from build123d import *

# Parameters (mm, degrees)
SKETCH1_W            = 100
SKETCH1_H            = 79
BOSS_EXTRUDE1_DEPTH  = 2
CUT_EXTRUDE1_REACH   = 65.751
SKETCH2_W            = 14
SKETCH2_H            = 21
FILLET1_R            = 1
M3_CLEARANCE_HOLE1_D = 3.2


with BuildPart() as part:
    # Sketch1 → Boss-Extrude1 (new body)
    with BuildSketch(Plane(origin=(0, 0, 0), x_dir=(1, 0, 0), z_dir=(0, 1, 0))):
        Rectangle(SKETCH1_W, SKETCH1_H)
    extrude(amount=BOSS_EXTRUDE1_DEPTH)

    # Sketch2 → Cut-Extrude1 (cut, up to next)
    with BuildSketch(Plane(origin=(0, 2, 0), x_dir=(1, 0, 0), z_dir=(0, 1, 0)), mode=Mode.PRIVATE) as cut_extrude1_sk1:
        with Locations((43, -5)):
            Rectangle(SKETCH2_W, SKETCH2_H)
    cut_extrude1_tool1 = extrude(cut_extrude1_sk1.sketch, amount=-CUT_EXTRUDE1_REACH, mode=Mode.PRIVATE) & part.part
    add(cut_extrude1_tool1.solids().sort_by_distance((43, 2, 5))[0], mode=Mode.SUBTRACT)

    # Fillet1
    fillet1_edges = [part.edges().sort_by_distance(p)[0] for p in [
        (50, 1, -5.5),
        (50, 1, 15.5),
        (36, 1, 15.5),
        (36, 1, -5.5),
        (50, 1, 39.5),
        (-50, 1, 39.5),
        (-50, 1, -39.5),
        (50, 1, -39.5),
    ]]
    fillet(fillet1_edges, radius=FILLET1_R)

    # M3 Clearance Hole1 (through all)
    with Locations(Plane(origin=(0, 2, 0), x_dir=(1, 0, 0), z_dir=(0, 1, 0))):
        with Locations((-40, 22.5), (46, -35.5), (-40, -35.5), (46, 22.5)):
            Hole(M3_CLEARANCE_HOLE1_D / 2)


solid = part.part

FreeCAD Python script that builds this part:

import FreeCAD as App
import Part
import Sketcher
Q = App.Units.Quantity


def edges_at(feature, points):
    """Names of the edges that pass closest to the given points."""
    edges = feature.Shape.Edges
    near = lambda p: min(range(len(edges)), key=lambda i: edges[i].distToShape(Part.Vertex(*p))[0])
    return sorted({f"Edge{near(p) + 1}" for p in points})

doc = App.newDocument("Part")
params = doc.addObject("Spreadsheet::Sheet", "Params")
for row, (alias, value) in enumerate([
    ("sketch1_width", "100 mm"),
    ("sketch1_height", "79 mm"),
    ("pad1_length", "2 mm"),
    ("sketch2_width", "14 mm"),
    ("sketch2_height", "21 mm"),
    ("fillet_radius", "1 mm"),
    ("sketch3_diameter", "3.2 mm"),
    ("hole_diameter", "3.2 mm"),
], start=1):
    params.set(f"A{row}", alias)
    params.set(f"B{row}", "=" + value)
    params.setAlias(f"B{row}", alias)

body = doc.addObject("PartDesign::Body", "Body")

# Sketch on XZ plane
sketch1 = doc.addObject("Sketcher::SketchObject", "Sketch")
body.addObject(sketch1)
sketch1.AttachmentSupport = (doc.XZ_Plane, [""])
sketch1.MapMode = "FlatFace"
sketch1.addGeometry([
    Part.LineSegment(App.Vector(-50, -40, 0), App.Vector(-50, 40, 0)),
    Part.LineSegment(App.Vector(-50, 40, 0), App.Vector(50, 40, 0)),
    Part.LineSegment(App.Vector(50, 40, 0), App.Vector(50, -40, 0)),
    Part.LineSegment(App.Vector(50, -40, 0), App.Vector(-50, -40, 0)),
], False)
sketch1.addConstraint([
    Sketcher.Constraint("Coincident", 0, 2, 1, 1),
    Sketcher.Constraint("Coincident", 1, 2, 2, 1),
    Sketcher.Constraint("Coincident", 2, 2, 3, 1),
    Sketcher.Constraint("Coincident", 3, 2, 0, 1),
    Sketcher.Constraint("Vertical", 0),
    Sketcher.Constraint("Horizontal", 1),
    Sketcher.Constraint("Vertical", 2),
    Sketcher.Constraint("Horizontal", 3),
    Sketcher.Constraint("Symmetric", 0, 2, 2, 2, -1, 1),
    Sketcher.Constraint("DistanceX", 1, 1, 1, 2, Q("100 mm")),
    Sketcher.Constraint("DistanceY", 0, 1, 0, 2, Q("79 mm")),
])
sketch1.setExpression("Constraints[9]", "Params.sketch1_width")
sketch1.setExpression("Constraints[10]", "Params.sketch1_height")
pad1 = doc.addObject("PartDesign::Pad", "Pad")
body.addObject(pad1)
pad1.Profile = sketch1
pad1.setExpression("Length", "Params.pad1_length")
pad1.Reversed = True

# Sketch on XZ plane
sketch2 = doc.addObject("Sketcher::SketchObject", "Sketch001")
body.addObject(sketch2)
sketch2.AttachmentSupport = (doc.XZ_Plane, [""])
sketch2.MapMode = "FlatFace"
sketch2.AttachmentOffset = App.Placement(App.Vector(0, 0, -2), App.Rotation())
sketch2.addGeometry([
    Part.LineSegment(App.Vector(36, -6, 0), App.Vector(36, 16, 0)),
    Part.LineSegment(App.Vector(36, 16, 0), App.Vector(50, 16, 0)),
    Part.LineSegment(App.Vector(50, 16, 0), App.Vector(50, -6, 0)),
    Part.LineSegment(App.Vector(50, -6, 0), App.Vector(36, -6, 0)),
], False)
sketch2.addConstraint([
    Sketcher.Constraint("Coincident", 0, 2, 1, 1),
    Sketcher.Constraint("Coincident", 1, 2, 2, 1),
    Sketcher.Constraint("Coincident", 2, 2, 3, 1),
    Sketcher.Constraint("Coincident", 3, 2, 0, 1),
    Sketcher.Constraint("Vertical", 0),
    Sketcher.Constraint("Horizontal", 1),
    Sketcher.Constraint("Vertical", 2),
    Sketcher.Constraint("Horizontal", 3),
    Sketcher.Constraint("DistanceX", 1, 1, 1, 2, Q("14 mm")),
    Sketcher.Constraint("DistanceY", 0, 1, 0, 2, Q("21 mm")),
    Sketcher.Constraint("DistanceX", -1, 1, 0, 2, Q("36 mm")),
    Sketcher.Constraint("DistanceY", -1, 1, 0, 2, Q("15.5 mm")),
])
sketch2.setExpression("Constraints[8]", "Params.sketch2_width")
sketch2.setExpression("Constraints[9]", "Params.sketch2_height")
pocket1 = doc.addObject("PartDesign::Pocket", "Pocket")
body.addObject(pocket1)
pocket1.Profile = sketch2
pocket1.Type = "UpToFirst"
pocket1.Reversed = True
doc.recompute()

fillet = doc.addObject("PartDesign::Fillet", "Fillet")
body.addObject(fillet)
fillet.Base = (pocket1, edges_at(pocket1, [
    (50, 1, -5.5),
    (50, 1, 15.5),
    (36, 1, 15.5),
    (36, 1, -5.5),
    (50, 1, 39.5),
    (-50, 1, 39.5),
    (-50, 1, -39.5),
    (50, 1, -39.5),
]))
fillet.setExpression("Radius", "Params.fillet_radius")

# Sketch on XZ plane
sketch3 = doc.addObject("Sketcher::SketchObject", "Sketch002")
body.addObject(sketch3)
sketch3.AttachmentSupport = (doc.XZ_Plane, [""])
sketch3.MapMode = "FlatFace"
sketch3.AttachmentOffset = App.Placement(App.Vector(0, 0, -2), App.Rotation())
sketch3.addGeometry([
    Part.Circle(App.Vector(-40, -22.5, 0), App.Vector(0, 0, 1), 1.6),
    Part.Circle(App.Vector(46, 35.5, 0), App.Vector(0, 0, 1), 1.6),
    Part.Circle(App.Vector(-40, 35.5, 0), App.Vector(0, 0, 1), 1.6),
    Part.Circle(App.Vector(46, -22.5, 0), App.Vector(0, 0, 1), 1.6),
], False)
sketch3.addConstraint([
    Sketcher.Constraint("Equal", 0, 1),
    Sketcher.Constraint("Equal", 1, 2),
    Sketcher.Constraint("Equal", 2, 3),
    Sketcher.Constraint("Horizontal", 1, 3, 2, 3),
    Sketcher.Constraint("Horizontal", 0, 3, 3, 3),
    Sketcher.Constraint("Vertical", 0, 3, 2, 3),
    Sketcher.Constraint("Vertical", 1, 3, 3, 3),
    Sketcher.Constraint("Diameter", 0, Q("3.2 mm")),
    Sketcher.Constraint("DistanceX", 0, 3, -1, 1, Q("40 mm")),
    Sketcher.Constraint("DistanceX", -1, 1, 1, 3, Q("46 mm")),
    Sketcher.Constraint("DistanceY", 0, 3, 1, 3, Q("58 mm")),
    Sketcher.Constraint("DistanceY", 0, 3, -1, 1, Q("22.5 mm")),
])
sketch3.setExpression("Constraints[7]", "Params.sketch3_diameter")
doc.recompute()
hole = doc.addObject("PartDesign::Hole", "Hole")
body.addObject(hole)
hole.Profile = sketch3
hole.ThreadType = "None"
hole.setExpression("Diameter", "Params.hole_diameter")
hole.DepthType = "ThroughAll"
hole.Reversed = True

doc.recompute()
